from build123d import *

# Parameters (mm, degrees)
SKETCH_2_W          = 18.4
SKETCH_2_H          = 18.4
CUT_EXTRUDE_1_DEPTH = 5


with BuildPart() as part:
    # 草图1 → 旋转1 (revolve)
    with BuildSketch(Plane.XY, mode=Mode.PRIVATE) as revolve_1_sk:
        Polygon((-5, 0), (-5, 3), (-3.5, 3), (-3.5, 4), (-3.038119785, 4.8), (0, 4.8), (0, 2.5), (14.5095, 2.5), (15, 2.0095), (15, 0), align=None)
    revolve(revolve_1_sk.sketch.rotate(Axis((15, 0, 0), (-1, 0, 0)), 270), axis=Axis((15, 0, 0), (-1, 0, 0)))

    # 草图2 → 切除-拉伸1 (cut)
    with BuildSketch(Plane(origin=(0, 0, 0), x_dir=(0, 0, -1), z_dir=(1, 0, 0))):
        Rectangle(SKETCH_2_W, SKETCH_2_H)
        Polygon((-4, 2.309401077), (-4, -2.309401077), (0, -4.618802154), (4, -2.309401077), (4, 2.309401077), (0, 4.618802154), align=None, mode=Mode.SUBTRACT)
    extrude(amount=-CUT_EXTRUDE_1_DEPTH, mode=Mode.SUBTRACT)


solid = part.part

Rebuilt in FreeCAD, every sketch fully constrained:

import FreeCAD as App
import Part
import Sketcher
from FreeCAD import Vector
Q = App.Units.Quantity

doc = App.newDocument("Part")
params = doc.addObject("Spreadsheet::Sheet", "Params")
for row, (alias, value) in enumerate([
    ("sketch1_width", "20 mm"),
    ("sketch1_height", "3 mm"),
    ("sketch1_height2", "1 mm"),
    ("sketch1_width2", "1.5 mm"),
    ("sketch1_height3", "2.3 mm"),
    ("revolution_angle", "360 deg"),
    ("sketch2_width", "18.4 mm"),
    ("pocket1_length", "5 mm"),
], start=1):
    params.set(f"A{row}", alias)
    params.set(f"B{row}", "=" + value)
    params.setAlias(f"B{row}", alias)

body = doc.addObject("PartDesign::Body", "Body")

# Sketch on XY plane
sketch1 = doc.addObject("Sketcher::SketchObject", "Sketch")
body.addObject(sketch1)
sketch1.AttachmentSupport = (doc.XY_Plane, [""])
sketch1.MapMode = "FlatFace"
sketch1.addGeometry([
    Part.LineSegment(Vector(-5, 3, 0), Vector(-5, 0, 0)),  # 0
    Part.LineSegment(Vector(-5, 0, 0), Vector(15, 0, 0)),  # 1
    Part.LineSegment(Vector(15, 0, 0), Vector(15, 2, 0)),  # 2
    Part.LineSegment(Vector(15, 2, 0), Vector(14.5, 2.5, 0)),  # 3
    Part.LineSegment(Vector(14.5, 2.5, 0), Vector(0, 2.5, 0)),  # 4
    Part.LineSegment(Vector(0, 2.5, 0), Vector(0, 4.8, 0)),  # 5
    Part.LineSegment(Vector(0, 4.8, 0), Vector(-3, 4.8, 0)),  # 6
    Part.LineSegment(Vector(-3, 4.8, 0), Vector(-3.5, 4, 0)),  # 7
    Part.LineSegment(Vector(-3.5, 4, 0), Vector(-3.5, 3, 0)),  # 8
    Part.LineSegment(Vector(-3.5, 3, 0), Vector(-5, 3, 0)),  # 9
], False)
sketch1.addConstraint([
    Sketcher.Constraint("Coincident", 0, 2, 1, 1),
    Sketcher.Constraint("Coincident", 1, 2, 2, 1),
    Sketcher.Constraint("Coincident", 2, 2, 3, 1),
    Sketcher.Constraint("Coincident", 3, 2, 4, 1),
    Sketcher.Constraint("Coincident", 4, 2, 5, 1),
    Sketcher.Constraint("Coincident", 5, 2, 6, 1),
    Sketcher.Constraint("Coincident", 6, 2, 7, 1),
    Sketcher.Constraint("Coincident", 7, 2, 8, 1),
    Sketcher.Constraint("Coincident", 8, 2, 9, 1),
    Sketcher.Constraint("Coincident", 9, 2, 0, 1),
    Sketcher.Constraint("Vertical", 0),
    Sketcher.Constraint("Horizontal", 1),
    Sketcher.Constraint("Vertical", 2),
    Sketcher.Constraint("Horizontal", 4),
    Sketcher.Constraint("Vertical", 5),
    Sketcher.Constraint("Horizontal", 6),
    Sketcher.Constraint("Vertical", 8),
    Sketcher.Constraint("Horizontal", 9),
    Sketcher.Constraint("PointOnObject", 0, 2, -1),
    Sketcher.Constraint("PointOnObject", 4, 2, -2),
    Sketcher.Constraint("DistanceX", 1, 1, 1, 2, Q("20 mm")),
    Sketcher.Constraint("DistanceY", 0, 2, 0, 1, Q("3 mm")),
    Sketcher.Constraint("DistanceY", 8, 2, 8, 1, Q("1 mm")),
    Sketcher.Constraint("Angle", 3, Q("135 deg")),
    Sketcher.Constraint("Angle", 7, Q("-120 deg")),
    Sketcher.Constraint("DistanceX", 9, 2, 9, 1, Q("1.5 mm")),
    Sketcher.Constraint("DistanceY", 5, 1, 5, 2, Q("2.3 mm")),
    Sketcher.Constraint("DistanceX", 0, 2, -1, 1, Q("5 mm")),
    Sketcher.Constraint("DistanceY", -1, 1, 3, 2, Q("2.5 mm")),
    Sketcher.Constraint("DistanceX", 4, 2, 4, 1, Q("14.5095 mm")),
])
sketch1.setExpression("Constraints[20]", "Params.sketch1_width")
sketch1.setExpression("Constraints[21]", "Params.sketch1_height")
sketch1.setExpression("Constraints[22]", "Params.sketch1_height2")
sketch1.setExpression("Constraints[25]", "Params.sketch1_width2")
sketch1.setExpression("Constraints[26]", "Params.sketch1_height3")
revolution = doc.addObject("PartDesign::Revolution", "Revolution")
body.addObject(revolution)
revolution.Profile = sketch1
revolution.ReferenceAxis = (sketch1, ["H_Axis"])
revolution.setExpression("Angle", "Params.revolution_angle")

# Sketch on YZ plane
sketch2 = doc.addObject("Sketcher::SketchObject", "Sketch001")
body.addObject(sketch2)
sketch2.AttachmentSupport = (doc.YZ_Plane, [""])
sketch2.MapMode = "FlatFace"
sketch2.addGeometry([
    Part.LineSegment(Vector(9.2, 9.2, 0), Vector(-9.2, 9.2, 0)),  # 0
    Part.LineSegment(Vector(-9.2, 9.2, 0), Vector(-9.2, -9.2, 0)),  # 1
    Part.LineSegment(Vector(-9.2, -9.2, 0), Vector(9.2, -9.2, 0)),  # 2
    Part.LineSegment(Vector(9.2, -9.2, 0), Vector(9.2, 9.2, 0)),  # 3
    Part.LineSegment(Vector(-2.3, 4, 0), Vector(2.3, 4, 0)),  # 4
    Part.LineSegment(Vector(2.3, 4, 0), Vector(4.6, 0, 0)),  # 5
    Part.LineSegment(Vector(4.6, 0, 0), Vector(2.3, -4, 0)),  # 6
    Part.LineSegment(Vector(2.3, -4, 0), Vector(-2.3, -4, 0)),  # 7
    Part.LineSegment(Vector(-2.3, -4, 0), Vector(-4.6, 0, 0)),  # 8
    Part.LineSegment(Vector(-4.6, 0, 0), Vector(-2.3, 4, 0)),  # 9
], False)
sketch2.addConstraint([
    Sketcher.Constraint("Coincident", 0, 2, 1, 1),
    Sketcher.Constraint("Coincident", 1, 2, 2, 1),
    Sketcher.Constraint("Coincident", 2, 2, 3, 1),
    Sketcher.Constraint("Coincident", 3, 2, 0, 1),
    Sketcher.Constraint("Coincident", 4, 2, 5, 1),
    Sketcher.Constraint("Coincident", 5, 2, 6, 1),
    Sketcher.Constraint("Coincident", 6, 2, 7, 1),
    Sketcher.Constraint("Coincident", 7, 2, 8, 1),
    Sketcher.Constraint("Coincident", 8, 2, 9, 1),
    Sketcher.Constraint("Coincident", 9, 2, 4, 1),
    Sketcher.Constraint("Horizontal", 0),
    Sketcher.Constraint("Vertical", 1),
    Sketcher.Constraint("Horizontal", 2),
    Sketcher.Constraint("Vertical", 3),
    Sketcher.Constraint("Horizontal", 4),
    Sketcher.Constraint("Horizontal", 7),
    Sketcher.Constraint("Symmetric", 0, 2, 2, 2, -1, 1),
    Sketcher.Constraint("Symmetric", 4, 2, 7, 2, -1, 1),
    Sketcher.Constraint("Symmetric", 5, 2, 8, 2, -1, 1),
    Sketcher.Constraint("PointOnObject", 5, 2, -1),
    Sketcher.Constraint("Parallel", 6, 9),
    Sketcher.Constraint("Vertical", 4, 2, 6, 2),
    Sketcher.Constraint("Equal", 2, 1),
    Sketcher.Constraint("Angle", 5, Q("-60 deg")),
    Sketcher.Constraint("DistanceX", 0, 2, 0, 1, Q("18.4 mm")),
    Sketcher.Constraint("DistanceY", -1, 1, 4, 2, Q("4 mm")),
    Sketcher.Constraint("DistanceX", -1, 1, 4, 2, Q("2.309401 mm")),
])
sketch2.setExpression("Constraints[24]", "Params.sketch2_width")
pocket1 = doc.addObject("PartDesign::Pocket", "Pocket")
body.addObject(pocket1)
pocket1.Profile = sketch2
pocket1.setExpression("Length", "Params.pocket1_length")

doc.recompute()
